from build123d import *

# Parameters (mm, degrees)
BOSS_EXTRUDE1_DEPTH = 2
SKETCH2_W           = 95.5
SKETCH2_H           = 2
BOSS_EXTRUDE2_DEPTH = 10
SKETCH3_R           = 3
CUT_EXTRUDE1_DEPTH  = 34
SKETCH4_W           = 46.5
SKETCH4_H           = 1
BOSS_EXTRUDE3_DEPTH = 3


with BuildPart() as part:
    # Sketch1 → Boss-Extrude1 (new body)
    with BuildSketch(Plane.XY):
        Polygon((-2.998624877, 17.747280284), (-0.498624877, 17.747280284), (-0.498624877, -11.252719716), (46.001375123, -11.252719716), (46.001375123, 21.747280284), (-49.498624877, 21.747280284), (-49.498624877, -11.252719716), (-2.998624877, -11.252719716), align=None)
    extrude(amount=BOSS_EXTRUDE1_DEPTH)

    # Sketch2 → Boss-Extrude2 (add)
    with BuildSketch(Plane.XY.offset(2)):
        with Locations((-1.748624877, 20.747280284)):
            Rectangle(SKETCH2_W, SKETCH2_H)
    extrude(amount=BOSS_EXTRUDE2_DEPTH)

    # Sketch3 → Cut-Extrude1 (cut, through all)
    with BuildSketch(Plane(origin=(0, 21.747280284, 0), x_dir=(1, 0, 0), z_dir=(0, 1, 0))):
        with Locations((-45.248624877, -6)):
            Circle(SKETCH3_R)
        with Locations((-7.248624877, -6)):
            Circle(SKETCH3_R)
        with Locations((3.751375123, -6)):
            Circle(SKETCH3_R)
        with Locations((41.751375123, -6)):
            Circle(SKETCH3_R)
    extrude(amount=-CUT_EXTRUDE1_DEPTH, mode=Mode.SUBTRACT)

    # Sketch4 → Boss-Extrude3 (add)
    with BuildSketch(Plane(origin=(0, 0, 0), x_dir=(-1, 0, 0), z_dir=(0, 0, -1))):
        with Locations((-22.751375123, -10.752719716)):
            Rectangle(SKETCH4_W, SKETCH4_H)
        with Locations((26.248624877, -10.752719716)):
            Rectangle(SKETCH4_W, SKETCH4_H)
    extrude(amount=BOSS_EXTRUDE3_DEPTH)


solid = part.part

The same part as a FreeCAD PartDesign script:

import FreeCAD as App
import Part
import Sketcher
from FreeCAD import Vector
Q = App.Units.Quantity

doc = App.newDocument("Part")
body = doc.addObject("PartDesign::Body", "Body")

sketch1 = doc.addObject("Sketcher::SketchObject", "Sketch")
body.addObject(sketch1)
sketch1.AttachmentSupport = (doc.XY_Plane, [""])
sketch1.MapMode = "FlatFace"
sketch1.addGeometry(Part.LineSegment(Vector(-2.998625, 17.74728, 0), Vector(-0.498625, 17.74728, 0)), False)
sketch1.addGeometry(Part.LineSegment(Vector(-0.498625, 17.74728, 0), Vector(-0.498625, -11.25272, 0)), False)
sketch1.addGeometry(Part.LineSegment(Vector(-0.498625, -11.25272, 0), Vector(46.001375, -11.25272, 0)), False)
sketch1.addGeometry(Part.LineSegment(Vector(46.001375, -11.25272, 0), Vector(46.001375, 21.74728, 0)), False)
sketch1.addGeometry(Part.LineSegment(Vector(46.001375, 21.74728, 0), Vector(-49.498625, 21.74728, 0)), False)
sketch1.addGeometry(Part.LineSegment(Vector(-49.498625, 21.74728, 0), Vector(-49.498625, -11.25272, 0)), False)
sketch1.addGeometry(Part.LineSegment(Vector(-49.498625, -11.25272, 0), Vector(-2.998625, -11.25272, 0)), False)
sketch1.addGeometry(Part.LineSegment(Vector(-2.998625, -11.25272, 0), Vector(-2.998625, 17.74728, 0)), False)
sketch1.addConstraint(Sketcher.Constraint("Coincident", 0, 2, 1, 1))
sketch1.addConstraint(Sketcher.Constraint("Coincident", 1, 2, 2, 1))
sketch1.addConstraint(Sketcher.Constraint("Coincident", 2, 2, 3, 1))
sketch1.addConstraint(Sketcher.Constraint("Coincident", 3, 2, 4, 1))
sketch1.addConstraint(Sketcher.Constraint("Coincident", 4, 2, 5, 1))
sketch1.addConstraint(Sketcher.Constraint("Coincident", 5, 2, 6, 1))
sketch1.addConstraint(Sketcher.Constraint("Coincident", 6, 2, 7, 1))
sketch1.addConstraint(Sketcher.Constraint("Coincident", 7, 2, 0, 1))
sketch1.addConstraint(Sketcher.Constraint("Horizontal", 0))
sketch1.addConstraint(Sketcher.Constraint("Vertical", 1))
sketch1.addConstraint(Sketcher.Constraint("Horizontal", 2))
sketch1.addConstraint(Sketcher.Constraint("Vertical", 3))
sketch1.addConstraint(Sketcher.Constraint("Horizontal", 4))
sketch1.addConstraint(Sketcher.Constraint("Vertical", 5))
sketch1.addConstraint(Sketcher.Constraint("Horizontal", 6))
sketch1.addConstraint(Sketcher.Constraint("Vertical", 7))
sketch1.addConstraint(Sketcher.Constraint("Horizontal", 2, 2, 5, 2))
sketch1.addConstraint(Sketcher.Constraint("Equal", 2, 6))
sketch1.addConstraint(Sketcher.Constraint("DistanceY", 1, 2, 1, 1, Q("29 mm")))
sketch1.addConstraint(Sketcher.Constraint("DistanceY", 3, 1, 3, 2, Q("33 mm")))
sketch1.addConstraint(Sketcher.Constraint("DistanceX", 0, 1, 0, 2, Q("2.5 mm")))
sketch1.addConstraint(Sketcher.Constraint("DistanceX", 2, 1, 2, 2, Q("46.5 mm")))
sketch1.addConstraint(Sketcher.Constraint("DistanceY", -1, 1, 0, 2, Q("17.74728 mm")))
sketch1.addConstraint(Sketcher.Constraint("DistanceX", 0, 2, -1, 1, Q("0.498625 mm")))
pad1 = doc.addObject("PartDesign::Pad", "Pad")
body.addObject(pad1)
pad1.Profile = sketch1
pad1.Length = 2

sketch2 = doc.addObject("Sketcher::SketchObject", "Sketch001")
body.addObject(sketch2)
sketch2.AttachmentSupport = (doc.XY_Plane, [""])
sketch2.MapMode = "FlatFace"
sketch2.AttachmentOffset = App.Placement(Vector(0, 0, 2), App.Rotation())
sketch2.addGeometry(Part.LineSegment(Vector(-49.498625, 21.74728, 0), Vector(-49.498625, 19.74728, 0)), False)
sketch2.addGeometry(Part.LineSegment(Vector(-49.498625, 19.74728, 0), Vector(46.001375, 19.74728, 0)), False)
sketch2.addGeometry(Part.LineSegment(Vector(46.001375, 19.74728, 0), Vector(46.001375, 21.74728, 0)), False)
sketch2.addGeometry(Part.LineSegment(Vector(46.001375, 21.74728, 0), Vector(-49.498625, 21.74728, 0)), False)
sketch2.addConstraint(Sketcher.Constraint("Coincident", 0, 2, 1, 1))
sketch2.addConstraint(Sketcher.Constraint("Coincident", 1, 2, 2, 1))
sketch2.addConstraint(Sketcher.Constraint("Coincident", 2, 2, 3, 1))
sketch2.addConstraint(Sketcher.Constraint("Coincident", 3, 2, 0, 1))
sketch2.addConstraint(Sketcher.Constraint("Vertical", 0))
sketch2.addConstraint(Sketcher.Constraint("Horizontal", 1))
sketch2.addConstraint(Sketcher.Constraint("Vertical", 2))
sketch2.addConstraint(Sketcher.Constraint("Horizontal", 3))
sketch2.addConstraint(Sketcher.Constraint("DistanceY", 0, 2, 0, 1, Q("2 mm")))
sketch2.addConstraint(Sketcher.Constraint("DistanceX", 1, 1, 1, 2, Q("95.5 mm")))
sketch2.addConstraint(Sketcher.Constraint("DistanceY", -1, 1, 0, 2, Q("19.74728 mm")))
sketch2.addConstraint(Sketcher.Constraint("DistanceX", 0, 2, -1, 1, Q("49.498625 mm")))
pad2 = doc.addObject("PartDesign::Pad", "Pad001")
body.addObject(pad2)
pad2.Profile = sketch2
pad2.Length = 10

sketch3 = doc.addObject("Sketcher::SketchObject", "Sketch002")
body.addObject(sketch3)
sketch3.AttachmentSupport = (doc.XZ_Plane, [""])
sketch3.MapMode = "FlatFace"
sketch3.AttachmentOffset = App.Placement(Vector(0, 0, -21.74728), App.Rotation())
sketch3.addGeometry(Part.Circle(Vector(-45.248625, 6, 0), Vector(0, 0, 1), 3), False)
sketch3.addGeometry(Part.Circle(Vector(-7.248625, 6, 0), Vector(0, 0, 1), 3), False)
sketch3.addGeometry(Part.Circle(Vector(3.751375, 6, 0), Vector(0, 0, 1), 3), False)
sketch3.addGeometry(Part.Circle(Vector(41.751375, 6, 0), Vector(0, 0, 1), 3), False)
sketch3.addConstraint(Sketcher.Constraint("Equal", 0, 1))
sketch3.addConstraint(Sketcher.Constraint("Equal", 1, 2))
sketch3.addConstraint(Sketcher.Constraint("Equal", 2, 3))
sketch3.addConstraint(Sketcher.Constraint("Horizontal", 0, 3, 1, 3))
sketch3.addConstraint(Sketcher.Constraint("Horizontal", 1, 3, 2, 3))
sketch3.addConstraint(Sketcher.Constraint("Horizontal", 2, 3, 3, 3))
sketch3.addConstraint(Sketcher.Constraint("Diameter", 0, Q("6 mm")))
sketch3.addConstraint(Sketcher.Constraint("DistanceY", -1, 1, 0, 3, Q("6 mm")))
sketch3.addConstraint(Sketcher.Constraint("DistanceX", 0, 3, 1, 3, Q("38 mm")))
sketch3.addConstraint(Sketcher.Constraint("DistanceX", 1, 3, 2, 3, Q("11 mm")))
sketch3.addConstraint(Sketcher.Constraint("DistanceX", 2, 3, 3, 3, Q("38 mm")))
sketch3.addConstraint(Sketcher.Constraint("DistanceX", 0, 3, -1, 1, Q("45.248625 mm")))
pocket1 = doc.addObject("PartDesign::Pocket", "Pocket")
body.addObject(pocket1)
pocket1.Profile = sketch3
pocket1.Type = "ThroughAll"
pocket1.Reversed = True

sketch4 = doc.addObject("Sketcher::SketchObject", "Sketch003")
body.addObject(sketch4)
sketch4.AttachmentSupport = (doc.XY_Plane, [""])
sketch4.MapMode = "FlatFace"
sketch4.addGeometry(Part.LineSegment(Vector(46.001375, -10.25272, 0), Vector(46.001375, -11.25272, 0)), False)
sketch4.addGeometry(Part.LineSegment(Vector(46.001375, -11.25272, 0), Vector(-0.498625, -11.25272, 0)), False)
sketch4.addGeometry(Part.LineSegment(Vector(-0.498625, -11.25272, 0), Vector(-0.498625, -10.25272, 0)), False)
sketch4.addGeometry(Part.LineSegment(Vector(-0.498625, -10.25272, 0), Vector(46.001375, -10.25272, 0)), False)
sketch4.addGeometry(Part.LineSegment(Vector(-2.998625, -10.25272, 0), Vector(-2.998625, -11.25272, 0)), False)
sketch4.addGeometry(Part.LineSegment(Vector(-2.998625, -11.25272, 0), Vector(-49.498625, -11.25272, 0)), False)
sketch4.addGeometry(Part.LineSegment(Vector(-49.498625, -11.25272, 0), Vector(-49.498625, -10.25272, 0)), False)
sketch4.addGeometry(Part.LineSegment(Vector(-49.498625, -10.25272, 0), Vector(-2.998625, -10.25272, 0)), False)
sketch4.addConstraint(Sketcher.Constraint("Coincident", 0, 2, 1, 1))
sketch4.addConstraint(Sketcher.Constraint("Coincident", 1, 2, 2, 1))
sketch4.addConstraint(Sketcher.Constraint("Coincident", 2, 2, 3, 1))
sketch4.addConstraint(Sketcher.Constraint("Coincident", 3, 2, 0, 1))
sketch4.addConstraint(Sketcher.Constraint("Coincident", 4, 2, 5, 1))
sketch4.addConstraint(Sketcher.Constraint("Coincident", 5, 2, 6, 1))
sketch4.addConstraint(Sketcher.Constraint("Coincident", 6, 2, 7, 1))
sketch4.addConstraint(Sketcher.Constraint("Coincident", 7, 2, 4, 1))
sketch4.addConstraint(Sketcher.Constraint("Vertical", 0))
sketch4.addConstraint(Sketcher.Constraint("Horizontal", 1))
sketch4.addConstraint(Sketcher.Constraint("Vertical", 2))
sketch4.addConstraint(Sketcher.Constraint("Horizontal", 3))
sketch4.addConstraint(Sketcher.Constraint("Vertical", 4))
sketch4.addConstraint(Sketcher.Constraint("Horizontal", 5))
sketch4.addConstraint(Sketcher.Constraint("Vertical", 6))
sketch4.addConstraint(Sketcher.Constraint("Horizontal", 7))
sketch4.addConstraint(Sketcher.Constraint("Horizontal", 1, 2, 4, 2))
sketch4.addConstraint(Sketcher.Constraint("Horizontal", 3, 2, 6, 2))
sketch4.addConstraint(Sketcher.Constraint("Equal", 3, 5))
sketch4.addConstraint(Sketcher.Constraint("DistanceY", 0, 2, 0, 1, Q("1 mm")))
sketch4.addConstraint(Sketcher.Constraint("DistanceX", 1, 2, 1, 1, Q("46.5 mm")))
sketch4.addConstraint(Sketcher.Constraint("DistanceX", 4, 2, 0, 2, Q("49 mm")))
sketch4.addConstraint(Sketcher.Constraint("DistanceY", 0, 2, -1, 1, Q("11.25272 mm")))
sketch4.addConstraint(Sketcher.Constraint("DistanceX", -1, 1, 0, 2, Q("46.001375 mm")))
pad3 = doc.addObject("PartDesign::Pad", "Pad002")
body.addObject(pad3)
pad3.Profile = sketch4
pad3.Length = 3
pad3.Reversed = True

doc.recompute()
